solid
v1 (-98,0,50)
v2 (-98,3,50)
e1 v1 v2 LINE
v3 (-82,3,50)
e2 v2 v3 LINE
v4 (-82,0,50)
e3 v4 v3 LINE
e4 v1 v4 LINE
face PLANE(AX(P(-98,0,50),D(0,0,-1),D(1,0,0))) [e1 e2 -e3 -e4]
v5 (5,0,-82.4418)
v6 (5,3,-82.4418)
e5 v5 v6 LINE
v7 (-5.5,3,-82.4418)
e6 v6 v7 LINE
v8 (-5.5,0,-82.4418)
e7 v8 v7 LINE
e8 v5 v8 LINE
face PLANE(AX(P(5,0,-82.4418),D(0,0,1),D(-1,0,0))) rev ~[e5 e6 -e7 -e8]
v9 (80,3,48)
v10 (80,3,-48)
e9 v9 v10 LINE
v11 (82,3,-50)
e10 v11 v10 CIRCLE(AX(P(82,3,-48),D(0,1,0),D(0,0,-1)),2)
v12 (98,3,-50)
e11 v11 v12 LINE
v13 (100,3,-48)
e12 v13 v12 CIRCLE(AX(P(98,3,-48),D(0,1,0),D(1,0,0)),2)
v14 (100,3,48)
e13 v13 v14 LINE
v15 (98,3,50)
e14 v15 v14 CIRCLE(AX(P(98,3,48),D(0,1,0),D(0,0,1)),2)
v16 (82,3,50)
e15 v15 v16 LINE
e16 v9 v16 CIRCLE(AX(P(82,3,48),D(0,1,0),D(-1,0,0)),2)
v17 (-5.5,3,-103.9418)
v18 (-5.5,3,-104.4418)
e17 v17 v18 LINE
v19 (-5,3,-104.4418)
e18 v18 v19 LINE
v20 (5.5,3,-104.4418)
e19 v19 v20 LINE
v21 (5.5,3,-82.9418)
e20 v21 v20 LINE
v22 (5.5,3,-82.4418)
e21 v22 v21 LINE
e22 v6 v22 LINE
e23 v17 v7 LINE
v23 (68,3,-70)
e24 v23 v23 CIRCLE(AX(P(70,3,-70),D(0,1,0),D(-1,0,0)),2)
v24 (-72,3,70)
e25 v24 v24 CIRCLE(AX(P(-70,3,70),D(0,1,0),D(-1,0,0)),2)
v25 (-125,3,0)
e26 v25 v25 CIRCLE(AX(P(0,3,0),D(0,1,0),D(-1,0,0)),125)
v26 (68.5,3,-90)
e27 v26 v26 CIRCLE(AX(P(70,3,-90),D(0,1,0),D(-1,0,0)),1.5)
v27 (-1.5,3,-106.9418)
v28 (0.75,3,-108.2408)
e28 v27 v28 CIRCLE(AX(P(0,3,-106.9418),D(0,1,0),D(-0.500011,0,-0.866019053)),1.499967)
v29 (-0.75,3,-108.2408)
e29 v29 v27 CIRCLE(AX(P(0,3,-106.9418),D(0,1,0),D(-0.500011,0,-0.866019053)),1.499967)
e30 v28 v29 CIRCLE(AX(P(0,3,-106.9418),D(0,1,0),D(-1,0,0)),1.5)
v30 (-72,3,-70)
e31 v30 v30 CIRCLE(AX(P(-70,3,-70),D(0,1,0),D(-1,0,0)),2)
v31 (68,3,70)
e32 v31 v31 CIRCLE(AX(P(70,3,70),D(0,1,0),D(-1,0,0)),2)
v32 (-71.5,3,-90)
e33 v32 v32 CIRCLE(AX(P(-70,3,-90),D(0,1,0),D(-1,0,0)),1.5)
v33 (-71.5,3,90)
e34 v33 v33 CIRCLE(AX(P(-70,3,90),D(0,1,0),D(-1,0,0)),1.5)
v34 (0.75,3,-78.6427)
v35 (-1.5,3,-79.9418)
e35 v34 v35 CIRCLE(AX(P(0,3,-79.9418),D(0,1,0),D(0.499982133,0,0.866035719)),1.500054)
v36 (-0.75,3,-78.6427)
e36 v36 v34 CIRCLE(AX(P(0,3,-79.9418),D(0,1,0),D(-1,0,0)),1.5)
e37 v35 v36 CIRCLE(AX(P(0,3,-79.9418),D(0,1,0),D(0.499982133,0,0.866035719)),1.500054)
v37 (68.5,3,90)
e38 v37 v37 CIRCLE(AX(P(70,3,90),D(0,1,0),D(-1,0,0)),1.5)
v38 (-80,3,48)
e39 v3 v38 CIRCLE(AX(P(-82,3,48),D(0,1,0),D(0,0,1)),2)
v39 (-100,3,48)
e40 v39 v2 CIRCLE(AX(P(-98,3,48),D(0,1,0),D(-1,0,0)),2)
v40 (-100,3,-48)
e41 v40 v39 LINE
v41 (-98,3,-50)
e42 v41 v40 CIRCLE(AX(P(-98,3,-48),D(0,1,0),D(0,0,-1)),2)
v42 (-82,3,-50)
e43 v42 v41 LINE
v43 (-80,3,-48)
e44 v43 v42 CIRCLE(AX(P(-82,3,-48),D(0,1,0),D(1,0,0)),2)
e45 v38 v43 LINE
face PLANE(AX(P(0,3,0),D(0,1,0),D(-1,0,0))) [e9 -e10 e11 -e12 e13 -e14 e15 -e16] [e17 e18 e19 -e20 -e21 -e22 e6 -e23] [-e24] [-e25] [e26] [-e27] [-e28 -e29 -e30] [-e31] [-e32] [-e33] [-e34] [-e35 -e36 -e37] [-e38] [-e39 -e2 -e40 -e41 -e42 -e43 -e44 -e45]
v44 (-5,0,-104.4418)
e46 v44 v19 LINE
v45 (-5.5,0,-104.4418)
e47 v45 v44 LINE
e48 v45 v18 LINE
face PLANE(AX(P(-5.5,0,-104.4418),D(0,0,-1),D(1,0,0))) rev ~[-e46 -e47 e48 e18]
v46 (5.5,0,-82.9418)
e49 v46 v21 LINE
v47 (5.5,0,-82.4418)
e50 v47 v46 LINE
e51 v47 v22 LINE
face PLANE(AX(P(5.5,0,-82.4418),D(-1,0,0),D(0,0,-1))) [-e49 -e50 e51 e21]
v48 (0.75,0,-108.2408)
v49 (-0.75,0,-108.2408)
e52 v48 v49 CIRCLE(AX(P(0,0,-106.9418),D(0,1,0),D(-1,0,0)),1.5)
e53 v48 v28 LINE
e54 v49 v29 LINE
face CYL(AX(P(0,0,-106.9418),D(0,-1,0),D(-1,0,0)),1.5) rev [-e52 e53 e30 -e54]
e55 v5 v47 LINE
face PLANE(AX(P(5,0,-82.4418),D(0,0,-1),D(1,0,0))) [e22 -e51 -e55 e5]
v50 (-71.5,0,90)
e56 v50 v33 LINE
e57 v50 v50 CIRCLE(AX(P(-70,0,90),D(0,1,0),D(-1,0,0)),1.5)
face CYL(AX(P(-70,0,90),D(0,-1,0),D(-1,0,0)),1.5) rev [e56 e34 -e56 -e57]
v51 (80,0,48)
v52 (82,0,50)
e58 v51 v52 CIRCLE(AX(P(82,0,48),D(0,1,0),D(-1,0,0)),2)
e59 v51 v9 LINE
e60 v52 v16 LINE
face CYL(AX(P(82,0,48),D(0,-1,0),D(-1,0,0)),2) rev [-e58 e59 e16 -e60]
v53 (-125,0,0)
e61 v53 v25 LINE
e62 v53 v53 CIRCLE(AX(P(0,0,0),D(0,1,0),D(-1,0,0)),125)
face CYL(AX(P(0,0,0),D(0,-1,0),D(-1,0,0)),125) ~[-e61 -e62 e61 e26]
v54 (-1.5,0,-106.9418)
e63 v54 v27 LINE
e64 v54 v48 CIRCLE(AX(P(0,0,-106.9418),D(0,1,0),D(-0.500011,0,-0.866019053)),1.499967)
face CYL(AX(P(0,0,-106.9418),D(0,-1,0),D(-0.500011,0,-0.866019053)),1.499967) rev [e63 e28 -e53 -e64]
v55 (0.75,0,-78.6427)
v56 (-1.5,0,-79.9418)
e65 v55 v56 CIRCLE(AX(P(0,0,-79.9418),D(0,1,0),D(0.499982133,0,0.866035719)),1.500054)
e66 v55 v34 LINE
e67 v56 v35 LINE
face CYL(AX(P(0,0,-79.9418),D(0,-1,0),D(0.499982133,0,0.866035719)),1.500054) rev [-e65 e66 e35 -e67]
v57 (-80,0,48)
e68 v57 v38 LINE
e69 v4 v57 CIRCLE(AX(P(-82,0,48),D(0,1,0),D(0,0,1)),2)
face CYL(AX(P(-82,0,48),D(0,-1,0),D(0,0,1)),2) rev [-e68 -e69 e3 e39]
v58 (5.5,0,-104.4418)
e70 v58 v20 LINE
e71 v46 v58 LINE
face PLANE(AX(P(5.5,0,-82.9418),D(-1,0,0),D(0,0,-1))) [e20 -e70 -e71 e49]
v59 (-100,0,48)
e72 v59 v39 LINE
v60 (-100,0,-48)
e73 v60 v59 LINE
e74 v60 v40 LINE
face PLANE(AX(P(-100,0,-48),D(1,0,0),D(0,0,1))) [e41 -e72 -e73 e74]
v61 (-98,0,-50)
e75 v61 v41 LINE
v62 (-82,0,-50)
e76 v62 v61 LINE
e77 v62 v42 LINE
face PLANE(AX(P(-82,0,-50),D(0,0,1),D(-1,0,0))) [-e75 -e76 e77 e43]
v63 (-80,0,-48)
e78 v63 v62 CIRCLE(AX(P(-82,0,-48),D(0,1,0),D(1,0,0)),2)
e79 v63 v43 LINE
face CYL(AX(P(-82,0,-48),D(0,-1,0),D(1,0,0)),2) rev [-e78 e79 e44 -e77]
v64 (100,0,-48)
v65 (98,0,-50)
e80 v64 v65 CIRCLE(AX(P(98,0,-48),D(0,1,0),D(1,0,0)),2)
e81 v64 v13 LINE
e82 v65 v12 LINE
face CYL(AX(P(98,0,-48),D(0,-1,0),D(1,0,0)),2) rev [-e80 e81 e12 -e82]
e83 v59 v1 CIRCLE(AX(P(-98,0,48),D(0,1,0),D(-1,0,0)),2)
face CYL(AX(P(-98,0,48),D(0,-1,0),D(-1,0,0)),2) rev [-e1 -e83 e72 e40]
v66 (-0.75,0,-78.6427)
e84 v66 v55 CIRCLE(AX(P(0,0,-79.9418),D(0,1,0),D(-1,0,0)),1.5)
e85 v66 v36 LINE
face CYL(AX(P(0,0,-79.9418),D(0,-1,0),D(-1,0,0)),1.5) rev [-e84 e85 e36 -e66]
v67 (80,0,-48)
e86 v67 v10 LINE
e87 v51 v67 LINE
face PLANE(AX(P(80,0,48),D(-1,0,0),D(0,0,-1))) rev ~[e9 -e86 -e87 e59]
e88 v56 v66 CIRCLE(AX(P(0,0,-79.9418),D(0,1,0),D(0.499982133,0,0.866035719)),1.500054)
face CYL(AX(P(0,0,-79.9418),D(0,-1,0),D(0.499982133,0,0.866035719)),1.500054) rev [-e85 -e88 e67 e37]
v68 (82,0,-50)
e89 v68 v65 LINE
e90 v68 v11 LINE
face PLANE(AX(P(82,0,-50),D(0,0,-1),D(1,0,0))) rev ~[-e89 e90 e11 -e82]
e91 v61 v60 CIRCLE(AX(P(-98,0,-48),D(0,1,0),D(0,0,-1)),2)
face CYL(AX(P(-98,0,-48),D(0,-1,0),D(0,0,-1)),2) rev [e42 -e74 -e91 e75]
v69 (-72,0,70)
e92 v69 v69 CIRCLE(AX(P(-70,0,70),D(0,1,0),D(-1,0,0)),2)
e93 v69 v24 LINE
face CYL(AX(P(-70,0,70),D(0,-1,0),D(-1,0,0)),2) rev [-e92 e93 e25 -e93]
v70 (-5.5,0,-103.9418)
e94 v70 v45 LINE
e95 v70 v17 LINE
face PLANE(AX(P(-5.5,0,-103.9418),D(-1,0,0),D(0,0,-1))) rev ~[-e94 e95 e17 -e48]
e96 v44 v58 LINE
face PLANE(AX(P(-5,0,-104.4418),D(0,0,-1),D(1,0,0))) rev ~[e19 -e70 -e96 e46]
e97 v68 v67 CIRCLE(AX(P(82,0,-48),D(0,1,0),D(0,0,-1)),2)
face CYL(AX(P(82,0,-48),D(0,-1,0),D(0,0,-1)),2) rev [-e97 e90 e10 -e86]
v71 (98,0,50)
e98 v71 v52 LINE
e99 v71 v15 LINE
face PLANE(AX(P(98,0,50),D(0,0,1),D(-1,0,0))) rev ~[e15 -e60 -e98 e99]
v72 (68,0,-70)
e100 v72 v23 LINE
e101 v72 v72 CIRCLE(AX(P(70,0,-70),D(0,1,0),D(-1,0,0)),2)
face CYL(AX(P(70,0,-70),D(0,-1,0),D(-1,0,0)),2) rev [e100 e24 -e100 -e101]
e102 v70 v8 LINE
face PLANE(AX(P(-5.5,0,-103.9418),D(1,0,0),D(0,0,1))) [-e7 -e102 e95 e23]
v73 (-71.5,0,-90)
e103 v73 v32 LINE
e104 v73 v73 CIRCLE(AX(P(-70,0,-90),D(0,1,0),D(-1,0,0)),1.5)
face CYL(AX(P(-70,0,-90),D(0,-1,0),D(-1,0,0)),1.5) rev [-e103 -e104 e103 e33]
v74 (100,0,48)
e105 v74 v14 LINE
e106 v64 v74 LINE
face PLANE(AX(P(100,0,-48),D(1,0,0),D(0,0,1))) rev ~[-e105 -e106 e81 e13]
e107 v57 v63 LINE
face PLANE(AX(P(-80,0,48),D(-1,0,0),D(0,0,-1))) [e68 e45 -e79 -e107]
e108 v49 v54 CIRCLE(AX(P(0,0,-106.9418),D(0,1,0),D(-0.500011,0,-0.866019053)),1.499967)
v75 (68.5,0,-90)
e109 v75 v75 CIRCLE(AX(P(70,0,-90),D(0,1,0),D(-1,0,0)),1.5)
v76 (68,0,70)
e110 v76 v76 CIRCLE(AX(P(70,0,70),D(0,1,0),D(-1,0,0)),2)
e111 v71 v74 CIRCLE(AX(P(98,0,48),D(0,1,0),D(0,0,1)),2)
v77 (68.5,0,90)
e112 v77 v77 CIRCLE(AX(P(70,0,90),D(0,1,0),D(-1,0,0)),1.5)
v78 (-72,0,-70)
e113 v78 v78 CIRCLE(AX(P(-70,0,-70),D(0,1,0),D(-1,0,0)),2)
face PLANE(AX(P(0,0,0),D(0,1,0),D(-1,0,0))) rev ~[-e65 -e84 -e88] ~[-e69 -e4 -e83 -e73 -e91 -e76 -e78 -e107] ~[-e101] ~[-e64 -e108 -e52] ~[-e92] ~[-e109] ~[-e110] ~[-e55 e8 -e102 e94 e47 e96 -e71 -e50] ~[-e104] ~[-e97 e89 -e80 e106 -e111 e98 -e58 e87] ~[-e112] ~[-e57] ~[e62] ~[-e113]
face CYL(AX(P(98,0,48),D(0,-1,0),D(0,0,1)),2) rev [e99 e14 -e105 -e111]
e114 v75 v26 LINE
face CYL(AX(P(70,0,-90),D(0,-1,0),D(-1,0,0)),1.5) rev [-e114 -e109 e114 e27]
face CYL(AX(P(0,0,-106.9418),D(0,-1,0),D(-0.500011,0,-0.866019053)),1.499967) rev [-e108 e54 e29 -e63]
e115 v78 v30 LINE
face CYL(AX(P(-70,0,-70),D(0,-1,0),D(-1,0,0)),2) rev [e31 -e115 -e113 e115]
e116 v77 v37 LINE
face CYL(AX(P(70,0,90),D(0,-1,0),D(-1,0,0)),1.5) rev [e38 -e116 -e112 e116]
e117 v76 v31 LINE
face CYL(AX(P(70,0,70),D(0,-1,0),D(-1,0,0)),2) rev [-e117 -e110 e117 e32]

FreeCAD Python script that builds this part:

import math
import FreeCAD as App
import Part
import Sketcher

doc = App.newDocument("Part")
body = doc.addObject("PartDesign::Body", "Body")

# Sketch on XZ plane
sketch1 = doc.addObject("Sketcher::SketchObject", "Sketch")
body.addObject(sketch1)
sketch1.AttachmentSupport = (doc.XZ_Plane, [""])
sketch1.MapMode = "FlatFace"
sketch1.addGeometry([
    Part.Circle(App.Vector(0, 0, 0), App.Vector(0, 0, 1), 125),  # 0
    Part.Circle(App.Vector(70, -90, 0), App.Vector(0, 0, 1), 1.5),  # 1
    Part.Circle(App.Vector(70, -70, 0), App.Vector(0, 0, 1), 2),  # 2
    Part.Circle(App.Vector(0, -106.9418, 0), App.Vector(0, 0, 1), 1.5),  # 3
    Part.LineSegment(App.Vector(-5.5, -104.4418, 0), App.Vector(5.5, -104.4418, 0)),  # 4
    Part.LineSegment(App.Vector(5.5, -104.4418, 0), App.Vector(5.5, -82.4418, 0)),  # 5
    Part.LineSegment(App.Vector(5.5, -82.4418, 0), App.Vector(-5.5, -82.4418, 0)),  # 6
    Part.LineSegment(App.Vector(-5.5, -82.4418, 0), App.Vector(-5.5, -104.4418, 0)),  # 7
    Part.Circle(App.Vector(0, -79.9418, 0), App.Vector(0, 0, 1), 1.5),  # 8
    Part.Circle(App.Vector(-70, -90, 0), App.Vector(0, 0, 1), 1.5),  # 9
    Part.Circle(App.Vector(-70, -70, 0), App.Vector(0, 0, 1), 2),  # 10
    Part.ArcOfCircle(Part.Circle(App.Vector(98, 48, 0), App.Vector(0, 0, 1), 2), math.radians(0), math.radians(90)),  # 11
    Part.LineSegment(App.Vector(98, 50, 0), App.Vector(82, 50, 0)),  # 12
    Part.ArcOfCircle(Part.Circle(App.Vector(82, 48, 0), App.Vector(0, 0, 1), 2), math.radians(90), math.radians(180)),  # 13
    Part.LineSegment(App.Vector(80, 48, 0), App.Vector(80, -48, 0)),  # 14
    Part.ArcOfCircle(Part.Circle(App.Vector(82, -48, 0), App.Vector(0, 0, 1), 2), math.radians(180), math.radians(270)),  # 15
    Part.LineSegment(App.Vector(82, -50, 0), App.Vector(98, -50, 0)),  # 16
    Part.ArcOfCircle(Part.Circle(App.Vector(98, -48, 0), App.Vector(0, 0, 1), 2), math.radians(-90), math.radians(0)),  # 17
    Part.LineSegment(App.Vector(100, -48, 0), App.Vector(100, 48, 0)),  # 18
    Part.Circle(App.Vector(70, 70, 0), App.Vector(0, 0, 1), 2),  # 19
    Part.Circle(App.Vector(70, 90, 0), App.Vector(0, 0, 1), 1.5),  # 20
    Part.LineSegment(App.Vector(-82, 50, 0), App.Vector(-98, 50, 0)),  # 21
    Part.ArcOfCircle(Part.Circle(App.Vector(-98, 48, 0), App.Vector(0, 0, 1), 2), math.radians(90), math.radians(180)),  # 22
    Part.LineSegment(App.Vector(-100, 48, 0), App.Vector(-100, -48, 0)),  # 23
    Part.ArcOfCircle(Part.Circle(App.Vector(-98, -48, 0), App.Vector(0, 0, 1), 2), math.radians(180), math.radians(270)),  # 24
    Part.LineSegment(App.Vector(-98, -50, 0), App.Vector(-82, -50, 0)),  # 25
    Part.ArcOfCircle(Part.Circle(App.Vector(-82, -48, 0), App.Vector(0, 0, 1), 2), math.radians(-90), math.radians(0)),  # 26
    Part.LineSegment(App.Vector(-80, -48, 0), App.Vector(-80, 48, 0)),  # 27
    Part.ArcOfCircle(Part.Circle(App.Vector(-82, 48, 0), App.Vector(0, 0, 1), 2), math.radians(0), math.radians(90)),  # 28
    Part.Circle(App.Vector(-70, 70, 0), App.Vector(0, 0, 1), 2),  # 29
    Part.Circle(App.Vector(-70, 90, 0), App.Vector(0, 0, 1), 1.5),  # 30
], False)
sketch1.addConstraint([
    Sketcher.Constraint("Coincident", 4, 2, 5, 1),
    Sketcher.Constraint("Coincident", 5, 2, 6, 1),
    Sketcher.Constraint("Coincident", 6, 2, 7, 1),
    Sketcher.Constraint("Coincident", 7, 2, 4, 1),
    Sketcher.Constraint("Tangent", 11, 2, 12, 1),
    Sketcher.Constraint("Tangent", 12, 2, 13, 1),
    Sketcher.Constraint("Tangent", 13, 2, 14, 1),
    Sketcher.Constraint("Tangent", 14, 2, 15, 1),
    Sketcher.Constraint("Tangent", 15, 2, 16, 1),
    Sketcher.Constraint("Tangent", 16, 2, 17, 1),
    Sketcher.Constraint("Tangent", 17, 2, 18, 1),
    Sketcher.Constraint("Tangent", 18, 2, 11, 1),
    Sketcher.Constraint("Tangent", 21, 2, 22, 1),
    Sketcher.Constraint("Tangent", 22, 2, 23, 1),
    Sketcher.Constraint("Tangent", 23, 2, 24, 1),
    Sketcher.Constraint("Tangent", 24, 2, 25, 1),
    Sketcher.Constraint("Tangent", 25, 2, 26, 1),
    Sketcher.Constraint("Tangent", 26, 2, 27, 1),
    Sketcher.Constraint("Tangent", 27, 2, 28, 1),
    Sketcher.Constraint("Tangent", 28, 2, 21, 1),
    Sketcher.Constraint("Horizontal", 4),
    Sketcher.Constraint("Vertical", 5),
    Sketcher.Constraint("Horizontal", 6),
    Sketcher.Constraint("Vertical", 7),
    Sketcher.Constraint("Horizontal", 12),
    Sketcher.Constraint("Vertical", 14),
    Sketcher.Constraint("Horizontal", 16),
    Sketcher.Constraint("Vertical", 18),
    Sketcher.Constraint("Horizontal", 21),
    Sketcher.Constraint("Vertical", 23),
    Sketcher.Constraint("Horizontal", 25),
    Sketcher.Constraint("Vertical", 27),
    Sketcher.Constraint("Coincident", 0, 3, -1, 1),
    Sketcher.Constraint("Equal", 1, 3),
    Sketcher.Constraint("Equal", 3, 8),
    Sketcher.Constraint("Equal", 8, 9),
    Sketcher.Constraint("Equal", 2, 10),
    Sketcher.Constraint("Equal", 10, 11),
    Sketcher.Constraint("Equal", 11, 13),
    Sketcher.Constraint("Equal", 13, 15),
    Sketcher.Constraint("Equal", 15, 17),
    Sketcher.Constraint("Equal", 17, 19),
    Sketcher.Constraint("Equal", 9, 20),
    Sketcher.Constraint("Equal", 19, 22),
    Sketcher.Constraint("Equal", 22, 24),
    Sketcher.Constraint("Equal", 24, 26),
    Sketcher.Constraint("Equal", 26, 28),
    Sketcher.Constraint("Equal", 28, 29),
    Sketcher.Constraint("Equal", 20, 30),
    Sketcher.Constraint("Symmetric", 10, 3, 19, 3, -1, 1),
    Sketcher.Constraint("Symmetric", 9, 3, 20, 3, -1, 1),
    Sketcher.Constraint("Symmetric", 17, 3, 22, 3, -1, 1),
    Sketcher.Constraint("Symmetric", 13, 3, 26, 3, -1, 1),
    Sketcher.Constraint("Symmetric", 2, 3, 29, 3, -1, 1),
    Sketcher.Constraint("Symmetric", 1, 3, 30, 3, -1, 1),
    Sketcher.Constraint("Symmetric", 1, 3, 9, 3, -2),
    Sketcher.Constraint("Symmetric", 2, 3, 10, 3, -2),
    Sketcher.Constraint("PointOnObject", 3, 3, -2),
    Sketcher.Constraint("PointOnObject", 8, 3, -2),
    Sketcher.Constraint("Horizontal", 13, 3, 22, 3),
    Sketcher.Constraint("Vertical", 1, 3, 2, 3),
    Sketcher.Constraint("Diameter", 0, 250.0),
    Sketcher.Constraint("Diameter", 1, 3.0),
    Sketcher.Constraint("Diameter", 2, 4.0),
    Sketcher.Constraint("DistanceX", 4, 1, 4, 2, 11.0),
    Sketcher.Constraint("DistanceX", 12, 2, 12, 1, 16.0),
    Sketcher.Constraint("DistanceY", 5, 1, 5, 2, 22.0),
    Sketcher.Constraint("DistanceY", 14, 2, 14, 1, 96.0),
    Sketcher.Constraint("DistanceX", -1, 1, 1, 3, 70.0),
    Sketcher.Constraint("DistanceY", 1, 3, -1, 1, 90.0),
    Sketcher.Constraint("DistanceY", 2, 3, -1, 1, 70.0),
    Sketcher.Constraint("DistanceX", -1, 1, 11, 3, 98.0),
    Sketcher.Constraint("DistanceY", 3, 3, 8, 3, 27.0),
    Sketcher.Constraint("DistanceX", -1, 1, 4, 2, 5.5),
    Sketcher.Constraint("DistanceY", 3, 3, 4, 2, 2.5),
    Sketcher.Constraint("DistanceY", 3, 3, -1, 1, 106.9418),
])
pad1 = doc.addObject("PartDesign::Pad", "Pad")
body.addObject(pad1)
pad1.Profile = sketch1
pad1.Length = 3
pad1.Reversed = True

doc.recompute()
